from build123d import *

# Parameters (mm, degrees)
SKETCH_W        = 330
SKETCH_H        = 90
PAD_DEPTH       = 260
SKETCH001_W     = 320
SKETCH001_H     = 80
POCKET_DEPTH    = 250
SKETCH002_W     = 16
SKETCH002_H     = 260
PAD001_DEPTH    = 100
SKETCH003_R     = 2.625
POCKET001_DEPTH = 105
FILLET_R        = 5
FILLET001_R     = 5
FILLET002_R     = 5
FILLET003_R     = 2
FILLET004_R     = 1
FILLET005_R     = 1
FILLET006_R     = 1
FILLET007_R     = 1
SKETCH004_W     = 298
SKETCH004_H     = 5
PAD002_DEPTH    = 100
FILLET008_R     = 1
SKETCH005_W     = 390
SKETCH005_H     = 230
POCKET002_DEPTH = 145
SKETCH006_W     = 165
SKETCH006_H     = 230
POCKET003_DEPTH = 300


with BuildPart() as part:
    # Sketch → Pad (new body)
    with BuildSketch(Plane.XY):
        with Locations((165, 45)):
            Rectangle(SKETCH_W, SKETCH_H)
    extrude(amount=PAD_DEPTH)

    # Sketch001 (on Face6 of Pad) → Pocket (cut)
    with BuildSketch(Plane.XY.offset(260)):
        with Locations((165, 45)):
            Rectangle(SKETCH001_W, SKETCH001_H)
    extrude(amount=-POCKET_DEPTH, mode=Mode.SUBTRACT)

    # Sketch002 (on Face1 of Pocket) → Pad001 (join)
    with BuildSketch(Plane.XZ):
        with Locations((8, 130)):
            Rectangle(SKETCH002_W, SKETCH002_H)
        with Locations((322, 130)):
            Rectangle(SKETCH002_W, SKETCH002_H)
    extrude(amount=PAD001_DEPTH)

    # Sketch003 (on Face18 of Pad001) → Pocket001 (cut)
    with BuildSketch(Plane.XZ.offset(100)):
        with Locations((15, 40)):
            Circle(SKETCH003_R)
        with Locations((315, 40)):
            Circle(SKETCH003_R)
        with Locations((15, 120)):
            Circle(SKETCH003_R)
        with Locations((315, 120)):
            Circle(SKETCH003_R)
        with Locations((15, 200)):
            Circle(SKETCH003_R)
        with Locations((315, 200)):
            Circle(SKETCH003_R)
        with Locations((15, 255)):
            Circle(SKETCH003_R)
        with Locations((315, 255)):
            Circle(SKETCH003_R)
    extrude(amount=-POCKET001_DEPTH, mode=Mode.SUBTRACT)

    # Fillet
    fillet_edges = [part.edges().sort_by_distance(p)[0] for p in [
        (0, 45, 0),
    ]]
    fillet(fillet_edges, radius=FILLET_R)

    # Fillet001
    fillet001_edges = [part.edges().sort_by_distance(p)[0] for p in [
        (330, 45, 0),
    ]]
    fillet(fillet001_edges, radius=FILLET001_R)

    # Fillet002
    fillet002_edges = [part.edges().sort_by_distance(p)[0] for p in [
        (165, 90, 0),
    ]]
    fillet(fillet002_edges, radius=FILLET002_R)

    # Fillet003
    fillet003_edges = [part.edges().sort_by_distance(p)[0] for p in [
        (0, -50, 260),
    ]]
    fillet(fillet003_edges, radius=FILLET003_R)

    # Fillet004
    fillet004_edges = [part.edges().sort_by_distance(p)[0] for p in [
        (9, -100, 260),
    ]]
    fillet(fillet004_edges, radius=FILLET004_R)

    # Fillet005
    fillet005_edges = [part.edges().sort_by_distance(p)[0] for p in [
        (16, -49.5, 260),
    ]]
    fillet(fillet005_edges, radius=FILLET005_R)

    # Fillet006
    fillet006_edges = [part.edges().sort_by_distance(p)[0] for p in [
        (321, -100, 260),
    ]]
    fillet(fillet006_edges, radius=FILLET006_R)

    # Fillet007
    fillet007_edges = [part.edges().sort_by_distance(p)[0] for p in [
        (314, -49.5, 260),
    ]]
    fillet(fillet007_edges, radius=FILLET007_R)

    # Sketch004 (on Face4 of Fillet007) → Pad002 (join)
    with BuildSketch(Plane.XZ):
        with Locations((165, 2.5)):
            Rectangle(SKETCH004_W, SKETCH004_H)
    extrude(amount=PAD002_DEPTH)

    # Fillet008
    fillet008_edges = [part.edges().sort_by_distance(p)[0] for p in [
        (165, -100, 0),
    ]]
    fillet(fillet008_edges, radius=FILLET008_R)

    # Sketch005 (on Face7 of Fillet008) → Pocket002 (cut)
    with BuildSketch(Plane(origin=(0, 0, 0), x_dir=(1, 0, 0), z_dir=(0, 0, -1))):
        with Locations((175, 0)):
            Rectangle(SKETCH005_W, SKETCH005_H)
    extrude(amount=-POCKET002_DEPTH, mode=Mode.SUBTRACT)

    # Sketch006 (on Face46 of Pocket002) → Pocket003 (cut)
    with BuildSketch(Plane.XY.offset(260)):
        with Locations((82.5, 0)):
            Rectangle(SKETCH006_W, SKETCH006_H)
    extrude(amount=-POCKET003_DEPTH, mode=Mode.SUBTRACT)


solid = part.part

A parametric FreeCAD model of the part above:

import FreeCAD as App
import Part
import Sketcher
from FreeCAD import Vector
Q = App.Units.Quantity


def edges_at(feature, points):
    """Names of the edges that pass closest to the given points."""
    edges = feature.Shape.Edges
    near = lambda p: min(range(len(edges)), key=lambda i: edges[i].distToShape(Part.Vertex(*p))[0])
    return sorted({f"Edge{near(p) + 1}" for p in points})


def add_polygon(sketch, points):
    """Adds a closed chain of lines whose ends are joined by coincident constraints."""
    first, n = sketch.GeometryCount, len(points)
    for a, b in zip(points, points[1:] + points[:1]):
        sketch.addGeometry(Part.LineSegment(App.Vector(*a, 0), App.Vector(*b, 0)), False)
    for i in range(n):
        sketch.addConstraint(Sketcher.Constraint("Coincident", first + i, 2, first + (i + 1) % n, 1))

doc = App.newDocument("Part")
body = doc.addObject("PartDesign::Body", "Body")

sketch1 = doc.addObject("Sketcher::SketchObject", "Sketch")
body.addObject(sketch1)
sketch1.AttachmentSupport = (doc.XY_Plane, [""])
sketch1.MapMode = "FlatFace"
add_polygon(sketch1, [(0, 90), (0, 0), (330, 0), (330, 90)])
sketch1.addConstraint(Sketcher.Constraint("Vertical", 0))
sketch1.addConstraint(Sketcher.Constraint("Horizontal", 1))
sketch1.addConstraint(Sketcher.Constraint("Vertical", 2))
sketch1.addConstraint(Sketcher.Constraint("Horizontal", 3))
sketch1.addConstraint(Sketcher.Constraint("Coincident", 0, 2, -1, 1))
sketch1.addConstraint(Sketcher.Constraint("DistanceX", 1, 1, 1, 2, Q("330 mm")))
sketch1.addConstraint(Sketcher.Constraint("DistanceY", 0, 2, 0, 1, Q("90 mm")))
pad1 = doc.addObject("PartDesign::Pad", "Pad")
body.addObject(pad1)
pad1.Profile = sketch1
pad1.Length = 260

sketch2 = doc.addObject("Sketcher::SketchObject", "Sketch001")
body.addObject(sketch2)
sketch2.AttachmentSupport = (doc.XY_Plane, [""])
sketch2.MapMode = "FlatFace"
sketch2.AttachmentOffset = App.Placement(Vector(0, 0, 260), App.Rotation())
add_polygon(sketch2, [(5, 85), (5, 5), (325, 5), (325, 85)])
sketch2.addConstraint(Sketcher.Constraint("Vertical", 0))
sketch2.addConstraint(Sketcher.Constraint("Horizontal", 1))
sketch2.addConstraint(Sketcher.Constraint("Vertical", 2))
sketch2.addConstraint(Sketcher.Constraint("Horizontal", 3))
sketch2.addConstraint(Sketcher.Constraint("DistanceX", 1, 1, 1, 2, Q("320 mm")))
sketch2.addConstraint(Sketcher.Constraint("DistanceY", 0, 2, 0, 1, Q("80 mm")))
sketch2.addConstraint(Sketcher.Constraint("DistanceX", -1, 1, 0, 2, Q("5 mm")))
sketch2.addConstraint(Sketcher.Constraint("DistanceY", -1, 1, 0, 2, Q("5 mm")))
pocket1 = doc.addObject("PartDesign::Pocket", "Pocket")
body.addObject(pocket1)
pocket1.Profile = sketch2
pocket1.Length = 250

sketch3 = doc.addObject("Sketcher::SketchObject", "Sketch002")
body.addObject(sketch3)
sketch3.AttachmentSupport = (doc.XZ_Plane, [""])
sketch3.MapMode = "FlatFace"
add_polygon(sketch3, [(0, 260), (0, 0), (16, 0), (16, 260)])
add_polygon(sketch3, [(314, 260), (314, 0), (330, 0), (330, 260)])
sketch3.addConstraint(Sketcher.Constraint("Vertical", 0))
sketch3.addConstraint(Sketcher.Constraint("Horizontal", 1))
sketch3.addConstraint(Sketcher.Constraint("Vertical", 2))
sketch3.addConstraint(Sketcher.Constraint("Horizontal", 3))
sketch3.addConstraint(Sketcher.Constraint("Vertical", 4))
sketch3.addConstraint(Sketcher.Constraint("Horizontal", 5))
sketch3.addConstraint(Sketcher.Constraint("Vertical", 6))
sketch3.addConstraint(Sketcher.Constraint("Horizontal", 7))
sketch3.addConstraint(Sketcher.Constraint("Coincident", 0, 2, -1, 1))
sketch3.addConstraint(Sketcher.Constraint("PointOnObject", 4, 2, -1))
sketch3.addConstraint(Sketcher.Constraint("Horizontal", 3, 2, 6, 2))
sketch3.addConstraint(Sketcher.Constraint("Equal", 3, 5))
sketch3.addConstraint(Sketcher.Constraint("DistanceX", 1, 1, 1, 2, Q("16 mm")))
sketch3.addConstraint(Sketcher.Constraint("DistanceY", 0, 2, 0, 1, Q("260 mm")))
sketch3.addConstraint(Sketcher.Constraint("DistanceX", -1, 1, 4, 2, Q("314 mm")))
pad2 = doc.addObject("PartDesign::Pad", "Pad001")
body.addObject(pad2)
pad2.Profile = sketch3
pad2.Length = 100

sketch4 = doc.addObject("Sketcher::SketchObject", "Sketch003")
body.addObject(sketch4)
sketch4.AttachmentSupport = (doc.XZ_Plane, [""])
sketch4.MapMode = "FlatFace"
sketch4.AttachmentOffset = App.Placement(Vector(0, 0, 100), App.Rotation())
sketch4.addGeometry(Part.Circle(Vector(15, 40, 0), Vector(0, 0, 1), 2.625), False)
sketch4.addGeometry(Part.Circle(Vector(315, 40, 0), Vector(0, 0, 1), 2.625), False)
sketch4.addGeometry(Part.Circle(Vector(15, 120, 0), Vector(0, 0, 1), 2.625), False)
sketch4.addGeometry(Part.Circle(Vector(315, 120, 0), Vector(0, 0, 1), 2.625), False)
sketch4.addGeometry(Part.Circle(Vector(15, 200, 0), Vector(0, 0, 1), 2.625), False)
sketch4.addGeometry(Part.Circle(Vector(315, 200, 0), Vector(0, 0, 1), 2.625), False)
sketch4.addGeometry(Part.Circle(Vector(15, 255, 0), Vector(0, 0, 1), 2.625), False)
sketch4.addGeometry(Part.Circle(Vector(315, 255, 0), Vector(0, 0, 1), 2.625), False)
sketch4.addConstraint(Sketcher.Constraint("Equal", 0, 1))
sketch4.addConstraint(Sketcher.Constraint("Equal", 1, 2))
sketch4.addConstraint(Sketcher.Constraint("Equal", 2, 3))
sketch4.addConstraint(Sketcher.Constraint("Equal", 3, 4))
sketch4.addConstraint(Sketcher.Constraint("Equal", 4, 5))
sketch4.addConstraint(Sketcher.Constraint("Equal", 5, 6))
sketch4.addConstraint(Sketcher.Constraint("Equal", 6, 7))
sketch4.addConstraint(Sketcher.Constraint("Horizontal", 0, 3, 1, 3))
sketch4.addConstraint(Sketcher.Constraint("Horizontal", 2, 3, 3, 3))
sketch4.addConstraint(Sketcher.Constraint("Horizontal", 4, 3, 5, 3))
sketch4.addConstraint(Sketcher.Constraint("Horizontal", 6, 3, 7, 3))
sketch4.addConstraint(Sketcher.Constraint("Vertical", 0, 3, 2, 3))
sketch4.addConstraint(Sketcher.Constraint("Vertical", 1, 3, 3, 3))
sketch4.addConstraint(Sketcher.Constraint("Vertical", 2, 3, 4, 3))
sketch4.addConstraint(Sketcher.Constraint("Vertical", 3, 3, 5, 3))
sketch4.addConstraint(Sketcher.Constraint("Vertical", 4, 3, 6, 3))
sketch4.addConstraint(Sketcher.Constraint("Vertical", 5, 3, 7, 3))
sketch4.addConstraint(Sketcher.Constraint("Diameter", 0, Q("5.25 mm")))
sketch4.addConstraint(Sketcher.Constraint("DistanceX", -1, 1, 0, 3, Q("15 mm")))
sketch4.addConstraint(Sketcher.Constraint("DistanceY", -1, 1, 0, 3, Q("40 mm")))
sketch4.addConstraint(Sketcher.Constraint("DistanceX", -1, 1, 1, 3, Q("315 mm")))
sketch4.addConstraint(Sketcher.Constraint("DistanceY", -1, 1, 2, 3, Q("120 mm")))
sketch4.addConstraint(Sketcher.Constraint("DistanceY", -1, 1, 4, 3, Q("200 mm")))
sketch4.addConstraint(Sketcher.Constraint("DistanceY", -1, 1, 6, 3, Q("255 mm")))
pocket2 = doc.addObject("PartDesign::Pocket", "Pocket001")
body.addObject(pocket2)
pocket2.Profile = sketch4
pocket2.Length = 105
doc.recompute()

fillet = doc.addObject("PartDesign::Fillet", "Fillet")
body.addObject(fillet)
fillet.Base = (pocket2, edges_at(pocket2, [(0, -5, 0)]))
fillet.Radius = 5
doc.recompute()

fillet2 = doc.addObject("PartDesign::Fillet", "Fillet001")
body.addObject(fillet2)
fillet2.Base = (fillet, edges_at(fillet, [(330, -5, 0)]))
fillet2.Radius = 5
doc.recompute()

fillet3 = doc.addObject("PartDesign::Fillet", "Fillet002")
body.addObject(fillet3)
fillet3.Base = (fillet2, edges_at(fillet2, [(165, 90, 0)]))
fillet3.Radius = 5
doc.recompute()

fillet4 = doc.addObject("PartDesign::Fillet", "Fillet003")
body.addObject(fillet4)
fillet4.Base = (fillet3, edges_at(fillet3, [(0, -7.5, 260)]))
fillet4.Radius = 2
doc.recompute()

fillet5 = doc.addObject("PartDesign::Fillet", "Fillet004")
body.addObject(fillet5)
fillet5.Base = (fillet4, edges_at(fillet4, [(9, -100, 260)]))
fillet5.Radius = 1
doc.recompute()

fillet6 = doc.addObject("PartDesign::Fillet", "Fillet005")
body.addObject(fillet6)
fillet6.Base = (fillet5, edges_at(fillet5, [(16, -49.5, 260)]))
fillet6.Radius = 1
doc.recompute()

fillet7 = doc.addObject("PartDesign::Fillet", "Fillet006")
body.addObject(fillet7)
fillet7.Base = (fillet6, edges_at(fillet6, [(321, -100, 260)]))
fillet7.Radius = 1
doc.recompute()

fillet8 = doc.addObject("PartDesign::Fillet", "Fillet007")
body.addObject(fillet8)
fillet8.Base = (fillet7, edges_at(fillet7, [(314, -49.5, 260)]))
fillet8.Radius = 1

sketch5 = doc.addObject("Sketcher::SketchObject", "Sketch004")
body.addObject(sketch5)
sketch5.AttachmentSupport = (doc.XZ_Plane, [""])
sketch5.MapMode = "FlatFace"
add_polygon(sketch5, [(16, 5), (16, 0), (314, 0), (314, 5)])
sketch5.addConstraint(Sketcher.Constraint("Vertical", 0))
sketch5.addConstraint(Sketcher.Constraint("Horizontal", 1))
sketch5.addConstraint(Sketcher.Constraint("Vertical", 2))
sketch5.addConstraint(Sketcher.Constraint("Horizontal", 3))
sketch5.addConstraint(Sketcher.Constraint("PointOnObject", 0, 2, -1))
sketch5.addConstraint(Sketcher.Constraint("DistanceX", 1, 1, 1, 2, Q("298 mm")))
sketch5.addConstraint(Sketcher.Constraint("DistanceY", 0, 2, 0, 1, Q("5 mm")))
sketch5.addConstraint(Sketcher.Constraint("DistanceX", -1, 1, 0, 2, Q("16 mm")))
pad3 = doc.addObject("PartDesign::Pad", "Pad002")
body.addObject(pad3)
pad3.Profile = sketch5
pad3.Length = 100
doc.recompute()

fillet9 = doc.addObject("PartDesign::Fillet", "Fillet008")
body.addObject(fillet9)
fillet9.Base = (pad3, edges_at(pad3, [(165, -100, 0)]))
fillet9.Radius = 1

sketch6 = doc.addObject("Sketcher::SketchObject", "Sketch005")
body.addObject(sketch6)
sketch6.AttachmentSupport = (doc.XY_Plane, [""])
sketch6.MapMode = "FlatFace"
add_polygon(sketch6, [(-20, -115), (-20, 115), (370, 115), (370, -115)])
sketch6.addConstraint(Sketcher.Constraint("Vertical", 0))
sketch6.addConstraint(Sketcher.Constraint("Horizontal", 1))
sketch6.addConstraint(Sketcher.Constraint("Vertical", 2))
sketch6.addConstraint(Sketcher.Constraint("Horizontal", 3))
sketch6.addConstraint(Sketcher.Constraint("DistanceX", 1, 1, 1, 2, Q("390 mm")))
sketch6.addConstraint(Sketcher.Constraint("DistanceY", 0, 1, 0, 2, Q("230 mm")))
sketch6.addConstraint(Sketcher.Constraint("DistanceX", 0, 2, -1, 1, Q("20 mm")))
sketch6.addConstraint(Sketcher.Constraint("DistanceY", -1, 1, 0, 2, Q("115 mm")))
pocket3 = doc.addObject("PartDesign::Pocket", "Pocket002")
body.addObject(pocket3)
pocket3.Profile = sketch6
pocket3.Length = 145
pocket3.Reversed = True

sketch7 = doc.addObject("Sketcher::SketchObject", "Sketch006")
body.addObject(sketch7)
sketch7.AttachmentSupport = (doc.XY_Plane, [""])
sketch7.MapMode = "FlatFace"
sketch7.AttachmentOffset = App.Placement(Vector(0, 0, 260), App.Rotation())
add_polygon(sketch7, [(0, 115), (0, -115), (165, -115), (165, 115)])
sketch7.addConstraint(Sketcher.Constraint("Vertical", 0))
sketch7.addConstraint(Sketcher.Constraint("Horizontal", 1))
sketch7.addConstraint(Sketcher.Constraint("Vertical", 2))
sketch7.addConstraint(Sketcher.Constraint("Horizontal", 3))
sketch7.addConstraint(Sketcher.Constraint("Symmetric", 0, 2, 3, 2, -1, 1))
sketch7.addConstraint(Sketcher.Constraint("DistanceX", 1, 1, 1, 2, Q("165 mm")))
sketch7.addConstraint(Sketcher.Constraint("DistanceY", 0, 2, 0, 1, Q("230 mm")))
pocket4 = doc.addObject("PartDesign::Pocket", "Pocket003")
body.addObject(pocket4)
pocket4.Profile = sketch7
pocket4.Length = 300

doc.recompute()
